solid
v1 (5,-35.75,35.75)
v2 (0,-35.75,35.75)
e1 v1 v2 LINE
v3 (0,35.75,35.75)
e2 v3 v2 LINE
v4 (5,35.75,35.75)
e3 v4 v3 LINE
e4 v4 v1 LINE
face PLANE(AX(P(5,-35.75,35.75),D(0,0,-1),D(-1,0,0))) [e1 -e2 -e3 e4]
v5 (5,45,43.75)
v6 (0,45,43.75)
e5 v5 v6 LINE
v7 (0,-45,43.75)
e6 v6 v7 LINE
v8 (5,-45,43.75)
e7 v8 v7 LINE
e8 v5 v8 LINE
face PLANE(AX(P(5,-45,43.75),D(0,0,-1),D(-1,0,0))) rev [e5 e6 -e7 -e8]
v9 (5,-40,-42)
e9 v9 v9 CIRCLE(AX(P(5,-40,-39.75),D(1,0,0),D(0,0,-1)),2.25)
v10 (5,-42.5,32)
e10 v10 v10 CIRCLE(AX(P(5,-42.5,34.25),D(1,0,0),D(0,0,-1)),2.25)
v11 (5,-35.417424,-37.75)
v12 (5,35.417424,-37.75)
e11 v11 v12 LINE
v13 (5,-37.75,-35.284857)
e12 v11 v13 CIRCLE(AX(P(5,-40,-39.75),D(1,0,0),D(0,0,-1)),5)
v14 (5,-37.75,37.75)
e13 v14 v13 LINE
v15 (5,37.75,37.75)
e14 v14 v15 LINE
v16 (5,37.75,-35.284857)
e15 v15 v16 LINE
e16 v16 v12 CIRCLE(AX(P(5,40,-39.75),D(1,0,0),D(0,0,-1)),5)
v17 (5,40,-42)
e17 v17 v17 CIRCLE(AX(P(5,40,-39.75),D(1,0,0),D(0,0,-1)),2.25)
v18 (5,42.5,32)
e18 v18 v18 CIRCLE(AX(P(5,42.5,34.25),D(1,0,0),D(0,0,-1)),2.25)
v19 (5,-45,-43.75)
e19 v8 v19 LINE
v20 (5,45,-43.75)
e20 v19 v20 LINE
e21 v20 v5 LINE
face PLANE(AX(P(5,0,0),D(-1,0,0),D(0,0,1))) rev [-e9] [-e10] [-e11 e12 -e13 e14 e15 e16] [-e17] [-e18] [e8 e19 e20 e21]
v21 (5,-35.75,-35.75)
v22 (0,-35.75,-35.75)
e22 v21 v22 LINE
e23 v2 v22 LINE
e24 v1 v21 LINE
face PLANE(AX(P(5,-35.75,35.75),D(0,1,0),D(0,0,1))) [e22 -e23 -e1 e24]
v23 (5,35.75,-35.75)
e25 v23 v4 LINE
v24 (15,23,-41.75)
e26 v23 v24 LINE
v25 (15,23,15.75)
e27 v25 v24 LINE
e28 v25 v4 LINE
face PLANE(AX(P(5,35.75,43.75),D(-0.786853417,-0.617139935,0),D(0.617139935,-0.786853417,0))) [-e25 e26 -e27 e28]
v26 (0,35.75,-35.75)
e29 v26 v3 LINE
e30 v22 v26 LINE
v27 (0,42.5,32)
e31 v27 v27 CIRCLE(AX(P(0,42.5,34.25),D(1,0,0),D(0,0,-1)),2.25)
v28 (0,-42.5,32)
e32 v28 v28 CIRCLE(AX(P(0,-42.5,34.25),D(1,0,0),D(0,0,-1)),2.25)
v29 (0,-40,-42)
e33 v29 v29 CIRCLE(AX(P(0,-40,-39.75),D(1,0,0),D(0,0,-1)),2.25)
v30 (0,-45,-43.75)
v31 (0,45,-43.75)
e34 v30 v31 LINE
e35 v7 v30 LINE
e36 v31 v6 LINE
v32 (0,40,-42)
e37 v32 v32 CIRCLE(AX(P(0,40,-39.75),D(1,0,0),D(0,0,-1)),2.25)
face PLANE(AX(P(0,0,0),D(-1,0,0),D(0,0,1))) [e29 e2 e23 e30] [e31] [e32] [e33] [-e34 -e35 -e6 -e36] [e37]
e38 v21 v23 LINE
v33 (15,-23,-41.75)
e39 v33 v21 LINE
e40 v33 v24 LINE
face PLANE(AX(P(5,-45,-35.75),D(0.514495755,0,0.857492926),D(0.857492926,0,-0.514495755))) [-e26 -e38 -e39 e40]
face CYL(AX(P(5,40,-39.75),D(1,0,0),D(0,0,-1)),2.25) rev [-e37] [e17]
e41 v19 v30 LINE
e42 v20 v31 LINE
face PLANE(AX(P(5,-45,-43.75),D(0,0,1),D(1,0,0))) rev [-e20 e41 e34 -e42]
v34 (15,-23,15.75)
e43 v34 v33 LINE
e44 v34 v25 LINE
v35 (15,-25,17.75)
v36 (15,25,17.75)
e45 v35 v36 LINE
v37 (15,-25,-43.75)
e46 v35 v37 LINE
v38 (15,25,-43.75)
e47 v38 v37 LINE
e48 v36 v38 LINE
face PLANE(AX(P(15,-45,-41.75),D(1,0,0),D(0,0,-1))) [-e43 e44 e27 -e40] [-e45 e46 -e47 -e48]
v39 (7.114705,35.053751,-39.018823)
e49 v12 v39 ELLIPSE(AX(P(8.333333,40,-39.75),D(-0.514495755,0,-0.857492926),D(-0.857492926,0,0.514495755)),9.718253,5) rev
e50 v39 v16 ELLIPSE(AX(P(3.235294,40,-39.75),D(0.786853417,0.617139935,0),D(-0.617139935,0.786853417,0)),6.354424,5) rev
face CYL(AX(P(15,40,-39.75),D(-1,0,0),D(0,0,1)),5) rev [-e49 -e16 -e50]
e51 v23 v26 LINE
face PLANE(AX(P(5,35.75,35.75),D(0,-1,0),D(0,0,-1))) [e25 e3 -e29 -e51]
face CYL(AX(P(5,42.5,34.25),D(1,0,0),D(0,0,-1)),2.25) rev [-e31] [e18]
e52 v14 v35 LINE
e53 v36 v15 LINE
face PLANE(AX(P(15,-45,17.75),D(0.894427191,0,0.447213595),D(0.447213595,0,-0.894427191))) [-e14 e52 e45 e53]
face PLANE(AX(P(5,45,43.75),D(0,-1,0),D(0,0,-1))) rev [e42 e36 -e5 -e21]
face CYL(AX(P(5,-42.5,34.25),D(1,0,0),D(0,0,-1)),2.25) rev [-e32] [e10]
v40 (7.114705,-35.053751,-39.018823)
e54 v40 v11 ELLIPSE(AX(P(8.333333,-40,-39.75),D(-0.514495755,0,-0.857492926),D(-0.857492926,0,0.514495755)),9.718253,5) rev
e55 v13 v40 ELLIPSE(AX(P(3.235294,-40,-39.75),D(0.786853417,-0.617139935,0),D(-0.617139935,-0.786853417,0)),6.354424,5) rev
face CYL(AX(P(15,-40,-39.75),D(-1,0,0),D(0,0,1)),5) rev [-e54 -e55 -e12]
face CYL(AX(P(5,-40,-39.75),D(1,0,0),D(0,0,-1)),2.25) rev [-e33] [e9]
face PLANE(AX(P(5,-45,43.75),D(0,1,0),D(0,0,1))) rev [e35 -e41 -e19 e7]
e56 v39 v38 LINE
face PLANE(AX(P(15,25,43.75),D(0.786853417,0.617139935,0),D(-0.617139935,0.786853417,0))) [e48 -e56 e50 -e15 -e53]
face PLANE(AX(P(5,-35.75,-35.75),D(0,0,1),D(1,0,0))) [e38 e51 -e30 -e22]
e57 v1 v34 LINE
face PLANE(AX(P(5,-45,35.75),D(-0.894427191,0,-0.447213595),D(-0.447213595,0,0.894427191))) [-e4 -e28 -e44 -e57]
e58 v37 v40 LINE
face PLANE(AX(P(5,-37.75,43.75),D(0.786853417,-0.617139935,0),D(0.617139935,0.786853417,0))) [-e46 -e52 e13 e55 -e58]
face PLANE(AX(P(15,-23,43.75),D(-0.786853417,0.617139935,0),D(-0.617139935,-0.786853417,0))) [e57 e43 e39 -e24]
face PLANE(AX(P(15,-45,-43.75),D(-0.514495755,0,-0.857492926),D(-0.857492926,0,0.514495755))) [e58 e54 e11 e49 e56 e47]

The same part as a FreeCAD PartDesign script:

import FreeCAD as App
import Part
import Sketcher
from FreeCAD import Vector


def add_polygon(sketch, points):
    """Adds a closed chain of lines whose ends are joined by coincident constraints."""
    first, n = sketch.GeometryCount, len(points)
    for a, b in zip(points, points[1:] + points[:1]):
        sketch.addGeometry(Part.LineSegment(App.Vector(*a, 0), App.Vector(*b, 0)), False)
    for i in range(n):
        sketch.addConstraint(Sketcher.Constraint("Coincident", first + i, 2, first + (i + 1) % n, 1))

doc = App.newDocument("Part")
body = doc.addObject("PartDesign::Body", "Body")

# Sketch on YZ plane
sketch1 = body.newObject("Sketcher::SketchObject", "Sketch")
sketch1.AttachmentSupport = (doc.getObject("YZ_Plane"), [""])
sketch1.MapMode = "FlatFace"
add_polygon(sketch1, [(45, 43.75), (-45, 43.75), (-45, -43.75), (45, -43.75)])  # lines 0-3
add_polygon(sketch1, [(-35.75, -35.75), (-35.75, 35.75), (35.75, 35.75), (35.75, -35.75)])  # lines 4-7
sketch1.addConstraint([
    Sketcher.Constraint("Horizontal", 0),
    Sketcher.Constraint("Vertical", 1),
    Sketcher.Constraint("Horizontal", 2),
    Sketcher.Constraint("Vertical", 3),
    Sketcher.Constraint("Vertical", 4),
    Sketcher.Constraint("Horizontal", 5),
    Sketcher.Constraint("Vertical", 6),
    Sketcher.Constraint("Horizontal", 7),
    Sketcher.Constraint("Symmetric", 0, 2, 2, 2, -1, 1),
    Sketcher.Constraint("Symmetric", 4, 2, 6, 2, -1, 1),
    Sketcher.Constraint("Equal", 7, 4),
    Sketcher.Constraint("DistanceX", 0, 2, 0, 1, 90.0),
    Sketcher.Constraint("DistanceX", 5, 1, 5, 2, 71.5),
    Sketcher.Constraint("DistanceY", 1, 2, 1, 1, 87.5),
])
pad1 = body.newObject("PartDesign::Pad", "Pad")
pad1.Profile = sketch1
pad1.Length = 5

# Sketch on YZ plane
sketch2 = body.newObject("Sketcher::SketchObject", "Sketch001")
sketch2.AttachmentSupport = (doc.getObject("YZ_Plane"), [""])
sketch2.MapMode = "FlatFace"
sketch2.AttachmentOffset = App.Placement(Vector(0, 0, 5), App.Rotation())
sketch2.addGeometry([
    Part.Circle(Vector(42.5, 34.25, 0), Vector(0, 0, 1), 2.25),
    Part.Circle(Vector(40, -39.75, 0), Vector(0, 0, 1), 2.25),
], False)
sketch2.addConstraint([
    Sketcher.Constraint("Equal", 0, 1),
    Sketcher.Constraint("Diameter", 0, 4.5),
    Sketcher.Constraint("DistanceX", -1, 1, 1, 3, 40.0),
    Sketcher.Constraint("DistanceY", 1, 3, 0, 3, 74.0),
    Sketcher.Constraint("DistanceX", -1, 1, 0, 3, 42.5),
    Sketcher.Constraint("DistanceY", -1, 1, 0, 3, 34.25),
])
doc.recompute()
hole = body.newObject("PartDesign::Hole", "Hole")
hole.Profile = sketch2
hole.ThreadType = "None"
hole.Diameter = 4.5
hole.DepthType = "ThroughAll"
doc.recompute()

mirrored = body.newObject("PartDesign::Mirrored", "Mirrored")
mirrored.Originals = [hole]
mirrored.MirrorPlane = (doc.getObject("XZ_Plane"), [""])
body.Tip = mirrored

# Sketch on XZ plane
sketch3 = body.newObject("Sketcher::SketchObject", "Sketch002")
sketch3.AttachmentSupport = (doc.getObject("XZ_Plane"), [""])
sketch3.MapMode = "FlatFace"
sketch3.AttachmentOffset = App.Placement(Vector(0, 0, -45), App.Rotation())
add_polygon(sketch3, [(5, -35.75), (15, -41.75), (15, -43.75), (5, -37.75)])  # lines 0-3
add_polygon(sketch3, [(15, 15.75), (5, 35.75), (5, 37.75), (15, 17.75)])  # lines 4-7
sketch3.addConstraint([
    Sketcher.Constraint("Vertical", 1),
    Sketcher.Constraint("Vertical", 3),
    Sketcher.Constraint("Vertical", 5),
    Sketcher.Constraint("Vertical", 7),
    Sketcher.Constraint("Symmetric", 3, 2, 4, 2, -1),
    Sketcher.Constraint("Parallel", 0, 2),
    Sketcher.Constraint("Parallel", 4, 6),
    Sketcher.Constraint("Vertical", 1, 2, 6, 2),
    Sketcher.Constraint("Equal", 3, 5),
    Sketcher.Constraint("DistanceY", 1, 2, 1, 1, 2.0),
    Sketcher.Constraint("DistanceX", -1, 1, 0, 2, 15.0),
    Sketcher.Constraint("DistanceX", -1, 1, 2, 2, 5.0),
    Sketcher.Constraint("DistanceY", 0, 2, 2, 2, 4.0),
    Sketcher.Constraint("DistanceY", 6, 2, 4, 2, 18.0),
    Sketcher.Constraint("DistanceY", 3, 2, 4, 2, 71.5),
])
pad2 = body.newObject("PartDesign::Pad", "Pad001")
pad2.Profile = sketch3
pad2.Length = 90

# Sketch on XY plane
sketch4 = body.newObject("Sketcher::SketchObject", "Sketch003")
sketch4.AttachmentSupport = (doc.getObject("XY_Plane"), [""])
sketch4.MapMode = "FlatFace"
sketch4.AttachmentOffset = App.Placement(Vector(0, 0, -43.75), App.Rotation())
add_polygon(sketch4, [(15, 23), (5, 35.75), (5, 37.75), (15, 25)])  # lines 0-3
add_polygon(sketch4, [(15, -25), (5, -37.75), (5, -35.75), (15, -23)])  # lines 4-7
sketch4.addConstraint([
    Sketcher.Constraint("Vertical", 1),
    Sketcher.Constraint("Vertical", 3),
    Sketcher.Constraint("Vertical", 5),
    Sketcher.Constraint("Vertical", 7),
    Sketcher.Constraint("Symmetric", 1, 2, 4, 2, -1),
    Sketcher.Constraint("Symmetric", 3, 2, 6, 2, -1),
    Sketcher.Constraint("Parallel", 0, 2),
    Sketcher.Constraint("Parallel", 4, 6),
    Sketcher.Constraint("Equal", 3, 5),
    Sketcher.Constraint("DistanceY", 1, 1, 1, 2, 2.0),
    Sketcher.Constraint("DistanceX", -1, 1, 0, 2, 5.0),
    Sketcher.Constraint("DistanceX", -1, 1, 2, 2, 15.0),
    Sketcher.Constraint("DistanceY", -1, 1, 2, 2, 25.0),
    Sketcher.Constraint("DistanceY", 4, 2, 0, 2, 73.5),
])
pad3 = body.newObject("PartDesign::Pad", "Pad002")
pad3.Profile = sketch4
pad3.Length = 87.5

# Sketch on XY plane
sketch5 = body.newObject("Sketcher::SketchObject", "Sketch004")
sketch5.AttachmentSupport = (doc.getObject("XY_Plane"), [""])
sketch5.MapMode = "FlatFace"
sketch5.AttachmentOffset = App.Placement(Vector(0, 0, 37.75), App.Rotation())
add_polygon(sketch5, [(5, 45), (15, 45), (15, 25), (5, 37.75)])  # lines 0-3
add_polygon(sketch5, [(15, -25), (15, -45), (5, -45), (5, -37.75)])  # lines 4-7
sketch5.addConstraint([
    Sketcher.Constraint("Horizontal", 0),
    Sketcher.Constraint("Vertical", 1),
    Sketcher.Constraint("Vertical", 3),
    Sketcher.Constraint("Vertical", 4),
    Sketcher.Constraint("Horizontal", 5),
    Sketcher.Constraint("Vertical", 6),
    Sketcher.Constraint("Symmetric", 0, 2, 4, 2, -1),
    Sketcher.Constraint("Symmetric", 2, 2, 6, 2, -1),
    Sketcher.Constraint("Equal", 1, 4),
    Sketcher.Constraint("DistanceX", 0, 1, 0, 2, 10.0),
    Sketcher.Constraint("DistanceY", 1, 2, 1, 1, 20.0),
    Sketcher.Constraint("DistanceX", -1, 1, 0, 2, 15.0),
    Sketcher.Constraint("DistanceY", -1, 1, 0, 2, 45.0),
    Sketcher.Constraint("DistanceY", 3, 1, 3, 2, 7.25),
])
pocket1 = body.newObject("PartDesign::Pocket", "Pocket")
pocket1.Profile = sketch5
pocket1.Length = 81.5

# Sketch on XZ plane
sketch6 = body.newObject("Sketcher::SketchObject", "Sketch005")
sketch6.AttachmentSupport = (doc.getObject("XZ_Plane"), [""])
sketch6.MapMode = "FlatFace"
sketch6.AttachmentOffset = App.Placement(Vector(0, 0, 37.75), App.Rotation())
add_polygon(sketch6, [(5, 43.75), (15, 43.75), (15, 17.75), (5, 37.75)])  # lines 0-3
add_polygon(sketch6, [(15, -43.75), (5, -43.75), (5, -37.75)])  # lines 4-6
sketch6.addConstraint([
    Sketcher.Constraint("Horizontal", 0),
    Sketcher.Constraint("Vertical", 1),
    Sketcher.Constraint("Vertical", 3),
    Sketcher.Constraint("Horizontal", 4),
    Sketcher.Constraint("Vertical", 5),
    Sketcher.Constraint("Symmetric", 3, 2, 4, 2, -1),
    Sketcher.Constraint("Vertical", 1, 2, 6, 2),
    Sketcher.Constraint("Equal", 3, 5),
    Sketcher.Constraint("DistanceX", 0, 1, 0, 2, 10.0),
    Sketcher.Constraint("DistanceY", 1, 2, 1, 1, 26.0),
    Sketcher.Constraint("DistanceY", 3, 1, 3, 2, 6.0),
    Sketcher.Constraint("DistanceX", -1, 1, 0, 2, 15.0),
    Sketcher.Constraint("DistanceY", 4, 2, 1, 2, 61.5),
])
pocket2 = body.newObject("PartDesign::Pocket", "Pocket001")
pocket2.Profile = sketch6
pocket2.Length = 75.5

# Sketch on YZ plane
sketch7 = body.newObject("Sketcher::SketchObject", "Sketch006")
sketch7.AttachmentSupport = (doc.getObject("YZ_Plane"), [""])
sketch7.MapMode = "FlatFace"
sketch7.AttachmentOffset = App.Placement(Vector(0, 0, 5), App.Rotation())
sketch7.addGeometry([
    Part.Circle(Vector(40, -39.75, 0), Vector(0, 0, 1), 5),
    Part.Circle(Vector(-40, -39.75, 0), Vector(0, 0, 1), 5),
], False)
sketch7.addConstraint([
    Sketcher.Constraint("Equal", 0, 1),
    Sketcher.Constraint("Symmetric", 0, 3, 1, 3, -2),
    Sketcher.Constraint("Diameter", 0, 10.0),
    Sketcher.Constraint("DistanceX", -1, 1, 0, 3, 40.0),
    Sketcher.Constraint("DistanceY", 0, 3, -1, 1, 39.75),
])
pocket3 = body.newObject("PartDesign::Pocket", "Pocket002")
pocket3.Profile = sketch7
pocket3.Length = 10
pocket3.Reversed = True

doc.recompute()
